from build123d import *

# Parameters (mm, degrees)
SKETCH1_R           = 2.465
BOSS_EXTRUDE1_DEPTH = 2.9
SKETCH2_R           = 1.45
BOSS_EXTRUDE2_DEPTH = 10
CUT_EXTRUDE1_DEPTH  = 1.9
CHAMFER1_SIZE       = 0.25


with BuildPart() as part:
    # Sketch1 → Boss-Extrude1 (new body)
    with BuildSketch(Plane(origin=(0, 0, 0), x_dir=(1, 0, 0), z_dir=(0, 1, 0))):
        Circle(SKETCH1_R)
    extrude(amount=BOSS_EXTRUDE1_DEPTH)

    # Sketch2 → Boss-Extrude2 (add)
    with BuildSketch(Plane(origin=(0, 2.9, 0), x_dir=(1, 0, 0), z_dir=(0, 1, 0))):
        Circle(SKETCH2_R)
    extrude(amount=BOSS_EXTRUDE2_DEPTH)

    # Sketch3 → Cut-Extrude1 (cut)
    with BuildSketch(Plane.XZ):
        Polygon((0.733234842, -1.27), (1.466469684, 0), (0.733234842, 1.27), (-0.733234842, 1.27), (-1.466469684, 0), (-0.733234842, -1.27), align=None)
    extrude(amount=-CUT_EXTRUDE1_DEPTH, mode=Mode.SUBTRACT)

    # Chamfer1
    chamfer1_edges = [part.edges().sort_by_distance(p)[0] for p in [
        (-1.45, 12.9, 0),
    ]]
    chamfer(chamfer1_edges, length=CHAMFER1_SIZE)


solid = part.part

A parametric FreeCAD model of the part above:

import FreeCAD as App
import Part
import Sketcher
Q = App.Units.Quantity


def edges_at(feature, points):
    """Names of the edges that pass closest to the given points."""
    edges = feature.Shape.Edges
    near = lambda p: min(range(len(edges)), key=lambda i: edges[i].distToShape(Part.Vertex(*p))[0])
    return sorted({f"Edge{near(p) + 1}" for p in points})


def add_polygon(sketch, points):
    """Adds a closed chain of lines whose ends are joined by coincident constraints."""
    first, n = sketch.GeometryCount, len(points)
    for a, b in zip(points, points[1:] + points[:1]):
        sketch.addGeometry(Part.LineSegment(App.Vector(*a, 0), App.Vector(*b, 0)), False)
    for i in range(n):
        sketch.addConstraint(Sketcher.Constraint("Coincident", first + i, 2, first + (i + 1) % n, 1))

doc = App.newDocument("Part")
body = doc.addObject("PartDesign::Body", "Body")

sketch1 = body.newObject("Sketcher::SketchObject", "Sketch")
sketch1.AttachmentSupport = (doc.getObject("XZ_Plane"), [""])
sketch1.MapMode = "FlatFace"
sketch1.addGeometry(Part.Circle(App.Vector(0, 0, 0), App.Vector(0, 0, 1), 2.465), False)
sketch1.addConstraint(Sketcher.Constraint("Coincident", 0, 3, -1, 1))
sketch1.addConstraint(Sketcher.Constraint("Diameter", 0, Q("4.93 mm")))
pad1 = body.newObject("PartDesign::Pad", "Pad")
pad1.Profile = sketch1
pad1.Length = 2.9
pad1.Reversed = True

sketch2 = body.newObject("Sketcher::SketchObject", "Sketch001")
sketch2.AttachmentSupport = (doc.getObject("XZ_Plane"), [""])
sketch2.MapMode = "FlatFace"
sketch2.AttachmentOffset = App.Placement(App.Vector(0, 0, -2.9), App.Rotation())
sketch2.addGeometry(Part.Circle(App.Vector(0, 0, 0), App.Vector(0, 0, 1), 1.45), False)
sketch2.addConstraint(Sketcher.Constraint("Coincident", 0, 3, -1, 1))
sketch2.addConstraint(Sketcher.Constraint("Diameter", 0, Q("2.9 mm")))
pad2 = body.newObject("PartDesign::Pad", "Pad001")
pad2.Profile = sketch2
pad2.Length = 10
pad2.Reversed = True

sketch3 = body.newObject("Sketcher::SketchObject", "Sketch002")
sketch3.AttachmentSupport = (doc.getObject("XZ_Plane"), [""])
sketch3.MapMode = "FlatFace"
add_polygon(sketch3, [(0.733235, -1.27), (1.46647, 0), (0.733235, 1.27), (-0.733235, 1.27), (-1.46647, 0), (-0.733235, -1.27)])
sketch3.addConstraint(Sketcher.Constraint("Horizontal", 2))
sketch3.addConstraint(Sketcher.Constraint("Horizontal", 5))
sketch3.addConstraint(Sketcher.Constraint("Symmetric", 0, 2, 3, 2, -1, 1))
sketch3.addConstraint(Sketcher.Constraint("Symmetric", 1, 2, 4, 2, -1, 1))
sketch3.addConstraint(Sketcher.Constraint("PointOnObject", 0, 2, -1))
sketch3.addConstraint(Sketcher.Constraint("Parallel", 0, 3))
sketch3.addConstraint(Sketcher.Constraint("Vertical", 2, 2, 4, 2))
sketch3.addConstraint(Sketcher.Constraint("Angle", 0, Q("60 deg")))
sketch3.addConstraint(Sketcher.Constraint("DistanceY", -1, 1, 1, 2, Q("1.27 mm")))
sketch3.addConstraint(Sketcher.Constraint("DistanceX", 2, 2, 2, 1, Q("1.46647 mm")))
pocket1 = body.newObject("PartDesign::Pocket", "Pocket")
pocket1.Profile = sketch3
pocket1.Length = 1.9
doc.recompute()

chamfer = body.newObject("PartDesign::Chamfer", "Chamfer")
chamfer.Base = (pocket1, edges_at(pocket1, [(-1.45, 12.9, 0)]))
chamfer.Size = 0.25

doc.recompute()
